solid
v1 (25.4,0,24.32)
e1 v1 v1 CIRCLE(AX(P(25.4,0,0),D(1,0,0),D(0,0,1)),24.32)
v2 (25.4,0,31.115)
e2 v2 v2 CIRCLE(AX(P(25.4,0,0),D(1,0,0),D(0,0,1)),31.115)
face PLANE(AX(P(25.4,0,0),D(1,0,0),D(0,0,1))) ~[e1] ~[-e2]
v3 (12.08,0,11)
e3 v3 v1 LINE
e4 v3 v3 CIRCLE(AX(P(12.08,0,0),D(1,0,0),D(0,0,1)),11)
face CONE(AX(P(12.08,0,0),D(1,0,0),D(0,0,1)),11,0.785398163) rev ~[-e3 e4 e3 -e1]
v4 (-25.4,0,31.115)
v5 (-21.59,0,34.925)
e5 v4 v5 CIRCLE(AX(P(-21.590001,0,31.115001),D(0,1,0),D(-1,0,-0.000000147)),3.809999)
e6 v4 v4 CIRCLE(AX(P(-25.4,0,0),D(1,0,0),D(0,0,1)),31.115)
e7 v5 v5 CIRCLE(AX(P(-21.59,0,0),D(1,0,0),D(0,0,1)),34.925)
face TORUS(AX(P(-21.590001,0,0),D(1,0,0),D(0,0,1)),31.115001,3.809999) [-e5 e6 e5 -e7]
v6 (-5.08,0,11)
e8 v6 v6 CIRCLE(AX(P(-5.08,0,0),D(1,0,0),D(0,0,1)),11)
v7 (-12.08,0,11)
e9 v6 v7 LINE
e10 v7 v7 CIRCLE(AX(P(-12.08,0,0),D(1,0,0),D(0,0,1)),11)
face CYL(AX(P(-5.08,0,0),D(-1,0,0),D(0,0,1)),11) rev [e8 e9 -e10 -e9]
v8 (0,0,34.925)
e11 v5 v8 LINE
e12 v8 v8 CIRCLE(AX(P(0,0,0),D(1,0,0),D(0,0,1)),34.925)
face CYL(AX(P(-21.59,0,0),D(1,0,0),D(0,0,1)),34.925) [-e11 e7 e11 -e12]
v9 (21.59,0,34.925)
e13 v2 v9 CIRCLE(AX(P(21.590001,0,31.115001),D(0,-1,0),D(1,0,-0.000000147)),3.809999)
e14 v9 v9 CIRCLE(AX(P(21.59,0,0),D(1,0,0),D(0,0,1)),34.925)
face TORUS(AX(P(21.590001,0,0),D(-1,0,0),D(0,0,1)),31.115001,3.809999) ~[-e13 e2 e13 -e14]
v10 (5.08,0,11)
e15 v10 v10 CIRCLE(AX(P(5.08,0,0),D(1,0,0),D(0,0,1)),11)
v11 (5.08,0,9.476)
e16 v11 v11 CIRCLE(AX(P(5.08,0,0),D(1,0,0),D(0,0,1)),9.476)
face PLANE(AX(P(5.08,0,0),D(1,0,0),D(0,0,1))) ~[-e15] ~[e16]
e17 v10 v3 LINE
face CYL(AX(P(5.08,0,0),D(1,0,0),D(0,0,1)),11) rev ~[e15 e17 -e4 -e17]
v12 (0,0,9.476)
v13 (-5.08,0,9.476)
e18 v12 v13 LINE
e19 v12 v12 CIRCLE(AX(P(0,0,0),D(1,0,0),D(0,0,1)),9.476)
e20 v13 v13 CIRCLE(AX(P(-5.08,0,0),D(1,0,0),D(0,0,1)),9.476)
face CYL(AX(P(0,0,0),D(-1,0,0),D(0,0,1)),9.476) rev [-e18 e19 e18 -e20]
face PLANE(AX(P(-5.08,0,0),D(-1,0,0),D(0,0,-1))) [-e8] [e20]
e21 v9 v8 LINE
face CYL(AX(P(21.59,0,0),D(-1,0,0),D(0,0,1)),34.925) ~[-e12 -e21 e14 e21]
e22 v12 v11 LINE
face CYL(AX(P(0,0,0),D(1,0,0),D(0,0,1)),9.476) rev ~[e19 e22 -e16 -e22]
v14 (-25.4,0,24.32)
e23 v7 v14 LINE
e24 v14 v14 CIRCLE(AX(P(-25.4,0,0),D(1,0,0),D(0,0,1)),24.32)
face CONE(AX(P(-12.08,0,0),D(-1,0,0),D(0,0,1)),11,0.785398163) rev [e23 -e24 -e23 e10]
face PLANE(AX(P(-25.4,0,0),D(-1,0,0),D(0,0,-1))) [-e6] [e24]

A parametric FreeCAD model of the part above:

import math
import FreeCAD as App
import Part
import Sketcher

V = App.Vector
Q = App.Units.Quantity

doc = App.newDocument("Part")
body = doc.addObject("PartDesign::Body", "Body")

# Sketch on XZ plane
sketch1 = body.newObject("Sketcher::SketchObject", "Sketch")
sketch1.AttachmentSupport = (doc.getObject("XZ_Plane"), [""])
sketch1.MapMode = "FlatFace"
sketch1.addGeometry(Part.LineSegment(V(0, 34.9, 0), V(0, 9.5, 0)), False)
sketch1.addGeometry(Part.LineSegment(V(0, 9.5, 0), V(5.1, 9.5, 0)), False)
sketch1.addGeometry(Part.LineSegment(V(5.1, 9.5, 0), V(5.1, 11, 0)), False)
sketch1.addGeometry(Part.LineSegment(V(5.1, 11, 0), V(12.1, 11, 0)), False)
sketch1.addGeometry(Part.LineSegment(V(12.1, 11, 0), V(25.4, 24.3, 0)), False)
sketch1.addGeometry(Part.LineSegment(V(25.4, 24.3, 0), V(25.4, 31.1, 0)), False)
sketch1.addGeometry(Part.ArcOfCircle(Part.Circle(V(21.6, 31.1, 0), V(0, 0, 1), 3.8), math.radians(0), math.radians(90)), False)
sketch1.addGeometry(Part.LineSegment(V(21.6, 34.9, 0), V(0, 34.9, 0)), False)
sketch1.addConstraint(Sketcher.Constraint("Coincident", 0, 2, 1, 1))
sketch1.addConstraint(Sketcher.Constraint("Coincident", 1, 2, 2, 1))
sketch1.addConstraint(Sketcher.Constraint("Coincident", 2, 2, 3, 1))
sketch1.addConstraint(Sketcher.Constraint("Coincident", 3, 2, 4, 1))
sketch1.addConstraint(Sketcher.Constraint("Coincident", 4, 2, 5, 1))
sketch1.addConstraint(Sketcher.Constraint("Tangent", 5, 2, 6, 1))
sketch1.addConstraint(Sketcher.Constraint("Tangent", 6, 2, 7, 1))
sketch1.addConstraint(Sketcher.Constraint("Coincident", 7, 2, 0, 1))
sketch1.addConstraint(Sketcher.Constraint("Vertical", 0))
sketch1.addConstraint(Sketcher.Constraint("Horizontal", 1))
sketch1.addConstraint(Sketcher.Constraint("Vertical", 2))
sketch1.addConstraint(Sketcher.Constraint("Horizontal", 3))
sketch1.addConstraint(Sketcher.Constraint("Vertical", 5))
sketch1.addConstraint(Sketcher.Constraint("Horizontal", 7))
sketch1.addConstraint(Sketcher.Constraint("PointOnObject", 0, 2, -2))
sketch1.addConstraint(Sketcher.Constraint("Radius", 6, Q("0.15 in")))
sketch1.addConstraint(Sketcher.Constraint("DistanceX", 1, 1, 1, 2, Q("0.2 in")))
sketch1.addConstraint(Sketcher.Constraint("DistanceX", -1, 1, 4, 2, Q("1 in")))
sketch1.addConstraint(Sketcher.Constraint("Angle", 4, Q("45 deg")))
sketch1.addConstraint(Sketcher.Constraint("DistanceY", 2, 1, 2, 2, Q("0.06 in")))
sketch1.addConstraint(Sketcher.Constraint("DistanceY", -1, 1, 6, 3, Q("1.225 in")))
sketch1.addConstraint(Sketcher.Constraint("DistanceX", 3, 1, 3, 2, Q("7 mm")))
sketch1.addConstraint(Sketcher.Constraint("DistanceY", 0, 2, 0, 1, Q("25.449 mm")))
revolution = body.newObject("PartDesign::Revolution", "Revolution")
revolution.Profile = sketch1
revolution.ReferenceAxis = (sketch1, ["H_Axis"])
revolution.Angle = 360
body2 = doc.addObject("PartDesign::Body", "Body001")
doc.recompute()

body2.BaseFeature = body
doc.recompute()

mirroring = doc.addObject("Part::Mirroring", "Mirroring")
mirroring.Source = body
mirroring.Base = V(0, 0, 0)
mirroring.Normal = V(-1, 0, 0)
body3 = doc.addObject("PartDesign::Body", "Body002")
body3.BaseFeature = mirroring
boolean = body2.newObject("PartDesign::Boolean", "Boolean")
boolean.Type = "Fuse"
boolean.addObjects([body3])
doc.recompute()
mirroring.Visibility = False

doc.recompute()
